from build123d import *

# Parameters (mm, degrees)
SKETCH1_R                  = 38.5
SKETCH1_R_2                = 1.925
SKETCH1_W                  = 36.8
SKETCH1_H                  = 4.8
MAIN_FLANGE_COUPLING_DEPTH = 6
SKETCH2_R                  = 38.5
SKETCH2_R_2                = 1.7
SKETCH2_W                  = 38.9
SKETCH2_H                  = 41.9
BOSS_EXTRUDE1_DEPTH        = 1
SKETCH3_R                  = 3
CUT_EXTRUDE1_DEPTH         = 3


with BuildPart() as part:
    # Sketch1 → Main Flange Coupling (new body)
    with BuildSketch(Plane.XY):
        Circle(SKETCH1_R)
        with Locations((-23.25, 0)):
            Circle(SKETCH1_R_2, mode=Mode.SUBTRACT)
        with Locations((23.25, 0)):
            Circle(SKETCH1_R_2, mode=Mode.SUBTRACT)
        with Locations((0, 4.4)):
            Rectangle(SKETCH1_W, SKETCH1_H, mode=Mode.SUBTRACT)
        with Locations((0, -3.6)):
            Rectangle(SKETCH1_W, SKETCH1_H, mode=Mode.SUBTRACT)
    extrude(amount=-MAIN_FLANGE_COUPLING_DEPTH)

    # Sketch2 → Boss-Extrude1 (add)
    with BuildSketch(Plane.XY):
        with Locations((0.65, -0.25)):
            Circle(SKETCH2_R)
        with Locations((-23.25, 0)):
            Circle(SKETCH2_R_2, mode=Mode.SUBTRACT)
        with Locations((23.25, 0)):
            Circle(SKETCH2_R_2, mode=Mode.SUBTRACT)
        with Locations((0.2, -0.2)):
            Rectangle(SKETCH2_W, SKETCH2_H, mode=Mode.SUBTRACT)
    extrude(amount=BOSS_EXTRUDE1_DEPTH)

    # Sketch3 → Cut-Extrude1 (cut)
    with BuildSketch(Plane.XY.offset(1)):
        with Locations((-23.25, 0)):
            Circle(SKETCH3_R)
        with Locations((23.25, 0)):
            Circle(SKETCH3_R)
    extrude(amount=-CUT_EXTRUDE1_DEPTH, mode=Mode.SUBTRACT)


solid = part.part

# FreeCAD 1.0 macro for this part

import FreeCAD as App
import Part
import Sketcher
from FreeCAD import Vector

doc = App.newDocument("Part")
params = doc.addObject("Spreadsheet::Sheet", "Params")
for row, (alias, value) in enumerate([
    ("sketch1_diameter", "77 mm"),
    ("sketch1_diameter2", "3.85 mm"),
    ("sketch1_width", "36.8 mm"),
    ("sketch1_height", "4.8 mm"),
    ("pad1_length", "6 mm"),
    ("sketch2_diameter", "77 mm"),
    ("sketch2_diameter2", "3.4 mm"),
    ("sketch2_width", "38.9 mm"),
    ("sketch2_height", "41.9 mm"),
    ("pad2_length", "1 mm"),
    ("sketch3_diameter", "6 mm"),
    ("pocket1_length", "3 mm"),
], start=1):
    params.set(f"A{row}", alias)
    params.set(f"B{row}", "=" + value)
    params.setAlias(f"B{row}", alias)

body = doc.addObject("PartDesign::Body", "Body")

# Sketch on XY plane
sketch1 = body.newObject("Sketcher::SketchObject", "Sketch")
sketch1.AttachmentSupport = (doc.getObject("XY_Plane"), [""])
sketch1.MapMode = "FlatFace"
sketch1.addGeometry(Part.Circle(Vector(0, 0, 0), Vector(0, 0, 1), 38.5), False)
sketch1.addGeometry(Part.Circle(Vector(-23.2, 0, 0), Vector(0, 0, 1), 1.9), False)
sketch1.addGeometry(Part.LineSegment(Vector(18.4, -6, 0), Vector(-18.4, -6, 0)), False)
sketch1.addGeometry(Part.LineSegment(Vector(-18.4, -6, 0), Vector(-18.4, -1.2, 0)), False)
sketch1.addGeometry(Part.LineSegment(Vector(-18.4, -1.2, 0), Vector(18.4, -1.2, 0)), False)
sketch1.addGeometry(Part.LineSegment(Vector(18.4, -1.2, 0), Vector(18.4, -6, 0)), False)
sketch1.addGeometry(Part.Circle(Vector(23.2, 0, 0), Vector(0, 0, 1), 1.9), False)
sketch1.addGeometry(Part.LineSegment(Vector(18.4, 2, 0), Vector(-18.4, 2, 0)), False)
sketch1.addGeometry(Part.LineSegment(Vector(-18.4, 2, 0), Vector(-18.4, 6.8, 0)), False)
sketch1.addGeometry(Part.LineSegment(Vector(-18.4, 6.8, 0), Vector(18.4, 6.8, 0)), False)
sketch1.addGeometry(Part.LineSegment(Vector(18.4, 6.8, 0), Vector(18.4, 2, 0)), False)
sketch1.addConstraint(Sketcher.Constraint("Coincident", 2, 2, 3, 1))
sketch1.addConstraint(Sketcher.Constraint("Coincident", 3, 2, 4, 1))
sketch1.addConstraint(Sketcher.Constraint("Coincident", 4, 2, 5, 1))
sketch1.addConstraint(Sketcher.Constraint("Coincident", 5, 2, 2, 1))
sketch1.addConstraint(Sketcher.Constraint("Coincident", 7, 2, 8, 1))
sketch1.addConstraint(Sketcher.Constraint("Coincident", 8, 2, 9, 1))
sketch1.addConstraint(Sketcher.Constraint("Coincident", 9, 2, 10, 1))
sketch1.addConstraint(Sketcher.Constraint("Coincident", 10, 2, 7, 1))
sketch1.addConstraint(Sketcher.Constraint("Horizontal", 2))
sketch1.addConstraint(Sketcher.Constraint("Vertical", 3))
sketch1.addConstraint(Sketcher.Constraint("Horizontal", 4))
sketch1.addConstraint(Sketcher.Constraint("Vertical", 5))
sketch1.addConstraint(Sketcher.Constraint("Horizontal", 7))
sketch1.addConstraint(Sketcher.Constraint("Vertical", 8))
sketch1.addConstraint(Sketcher.Constraint("Horizontal", 9))
sketch1.addConstraint(Sketcher.Constraint("Vertical", 10))
sketch1.addConstraint(Sketcher.Constraint("Coincident", 0, 3, -1, 1))
sketch1.addConstraint(Sketcher.Constraint("Equal", 1, 6))
sketch1.addConstraint(Sketcher.Constraint("Symmetric", 1, 3, 6, 3, -1, 1))
sketch1.addConstraint(Sketcher.Constraint("PointOnObject", 1, 3, -1))
sketch1.addConstraint(Sketcher.Constraint("Vertical", 3, 2, 7, 2))
sketch1.addConstraint(Sketcher.Constraint("Vertical", 5, 2, 9, 2))
sketch1.addConstraint(Sketcher.Constraint("Equal", 5, 8))
sketch1.addConstraint(Sketcher.Constraint("Diameter", 0, 77.0))
sketch1.addConstraint(Sketcher.Constraint("Diameter", 1, 3.85))
sketch1.addConstraint(Sketcher.Constraint("DistanceX", 2, 2, 2, 1, 36.8))
sketch1.addConstraint(Sketcher.Constraint("DistanceY", 3, 1, 3, 2, 4.8))
sketch1.addConstraint(Sketcher.Constraint("DistanceY", 2, 2, -1, 1, 6.0))
sketch1.addConstraint(Sketcher.Constraint("DistanceY", -1, 1, 7, 2, 2.0))
sketch1.addConstraint(Sketcher.Constraint("DistanceX", 2, 2, -1, 1, 18.4))
sketch1.addConstraint(Sketcher.Constraint("DistanceX", 1, 3, 6, 3, 46.5))
sketch1.setExpression("Constraints[23]", "Params.sketch1_diameter")
sketch1.setExpression("Constraints[24]", "Params.sketch1_diameter2")
sketch1.setExpression("Constraints[25]", "Params.sketch1_width")
sketch1.setExpression("Constraints[26]", "Params.sketch1_height")
pad1 = body.newObject("PartDesign::Pad", "Pad")
pad1.Profile = sketch1
pad1.setExpression("Length", "Params.pad1_length")
pad1.Reversed = True

# Sketch on XY plane
sketch2 = body.newObject("Sketcher::SketchObject", "Sketch001")
sketch2.AttachmentSupport = (doc.getObject("XY_Plane"), [""])
sketch2.MapMode = "FlatFace"
sketch2.addGeometry(Part.Circle(Vector(0.7, -0.2, 0), Vector(0, 0, 1), 38.5), False)
sketch2.addGeometry(Part.LineSegment(Vector(19.6, -21.1, 0), Vector(-19.2, -21.1, 0)), False)
sketch2.addGeometry(Part.LineSegment(Vector(-19.2, -21.1, 0), Vector(-19.2, 20.8, 0)), False)
sketch2.addGeometry(Part.LineSegment(Vector(-19.2, 20.8, 0), Vector(19.6, 20.8, 0)), False)
sketch2.addGeometry(Part.LineSegment(Vector(19.6, 20.8, 0), Vector(19.6, -21.1, 0)), False)
sketch2.addGeometry(Part.Circle(Vector(-23.2, 0, 0), Vector(0, 0, 1), 1.7), False)
sketch2.addGeometry(Part.Circle(Vector(23.2, 0, 0), Vector(0, 0, 1), 1.7), False)
sketch2.addConstraint(Sketcher.Constraint("Coincident", 1, 2, 2, 1))
sketch2.addConstraint(Sketcher.Constraint("Coincident", 2, 2, 3, 1))
sketch2.addConstraint(Sketcher.Constraint("Coincident", 3, 2, 4, 1))
sketch2.addConstraint(Sketcher.Constraint("Coincident", 4, 2, 1, 1))
sketch2.addConstraint(Sketcher.Constraint("Horizontal", 1))
sketch2.addConstraint(Sketcher.Constraint("Vertical", 2))
sketch2.addConstraint(Sketcher.Constraint("Horizontal", 3))
sketch2.addConstraint(Sketcher.Constraint("Vertical", 4))
sketch2.addConstraint(Sketcher.Constraint("Equal", 5, 6))
sketch2.addConstraint(Sketcher.Constraint("Symmetric", 5, 3, 6, 3, -1, 1))
sketch2.addConstraint(Sketcher.Constraint("PointOnObject", 5, 3, -1))
sketch2.addConstraint(Sketcher.Constraint("Diameter", 0, 77.0))
sketch2.addConstraint(Sketcher.Constraint("Diameter", 5, 3.4))
sketch2.addConstraint(Sketcher.Constraint("DistanceX", 1, 2, 1, 1, 38.9))
sketch2.addConstraint(Sketcher.Constraint("DistanceY", 2, 1, 2, 2, 41.9))
sketch2.addConstraint(Sketcher.Constraint("DistanceX", 5, 3, 1, 2, 4.0))
sketch2.addConstraint(Sketcher.Constraint("DistanceY", 0, 3, 2, 2, 21.0))
sketch2.addConstraint(Sketcher.Constraint("DistanceX", 0, 3, 3, 2, 19.0))
sketch2.addConstraint(Sketcher.Constraint("DistanceX", 0, 3, 6, 3, 22.6))
sketch2.addConstraint(Sketcher.Constraint("DistanceY", 0, 3, -1, 1, 0.25))
sketch2.setExpression("Constraints[11]", "Params.sketch2_diameter")
sketch2.setExpression("Constraints[12]", "Params.sketch2_diameter2")
sketch2.setExpression("Constraints[13]", "Params.sketch2_width")
sketch2.setExpression("Constraints[14]", "Params.sketch2_height")
pad2 = body.newObject("PartDesign::Pad", "Pad001")
pad2.Profile = sketch2
pad2.setExpression("Length", "Params.pad2_length")

# Sketch on XY plane
sketch3 = body.newObject("Sketcher::SketchObject", "Sketch002")
sketch3.AttachmentSupport = (doc.getObject("XY_Plane"), [""])
sketch3.MapMode = "FlatFace"
sketch3.AttachmentOffset = App.Placement(Vector(0, 0, 1), App.Rotation())
sketch3.addGeometry(Part.Circle(Vector(-23.2, 0, 0), Vector(0, 0, 1), 3), False)
sketch3.addGeometry(Part.Circle(Vector(23.2, 0, 0), Vector(0, 0, 1), 3), False)
sketch3.addConstraint(Sketcher.Constraint("Equal", 0, 1))
sketch3.addConstraint(Sketcher.Constraint("Symmetric", 0, 3, 1, 3, -1, 1))
sketch3.addConstraint(Sketcher.Constraint("PointOnObject", 0, 3, -1))
sketch3.addConstraint(Sketcher.Constraint("Diameter", 0, 6.0))
sketch3.addConstraint(Sketcher.Constraint("DistanceX", 0, 3, 1, 3, 46.5))
sketch3.setExpression("Constraints[3]", "Params.sketch3_diameter")
pocket1 = body.newObject("PartDesign::Pocket", "Pocket")
pocket1.Profile = sketch3
pocket1.setExpression("Length", "Params.pocket1_length")

doc.recompute()
